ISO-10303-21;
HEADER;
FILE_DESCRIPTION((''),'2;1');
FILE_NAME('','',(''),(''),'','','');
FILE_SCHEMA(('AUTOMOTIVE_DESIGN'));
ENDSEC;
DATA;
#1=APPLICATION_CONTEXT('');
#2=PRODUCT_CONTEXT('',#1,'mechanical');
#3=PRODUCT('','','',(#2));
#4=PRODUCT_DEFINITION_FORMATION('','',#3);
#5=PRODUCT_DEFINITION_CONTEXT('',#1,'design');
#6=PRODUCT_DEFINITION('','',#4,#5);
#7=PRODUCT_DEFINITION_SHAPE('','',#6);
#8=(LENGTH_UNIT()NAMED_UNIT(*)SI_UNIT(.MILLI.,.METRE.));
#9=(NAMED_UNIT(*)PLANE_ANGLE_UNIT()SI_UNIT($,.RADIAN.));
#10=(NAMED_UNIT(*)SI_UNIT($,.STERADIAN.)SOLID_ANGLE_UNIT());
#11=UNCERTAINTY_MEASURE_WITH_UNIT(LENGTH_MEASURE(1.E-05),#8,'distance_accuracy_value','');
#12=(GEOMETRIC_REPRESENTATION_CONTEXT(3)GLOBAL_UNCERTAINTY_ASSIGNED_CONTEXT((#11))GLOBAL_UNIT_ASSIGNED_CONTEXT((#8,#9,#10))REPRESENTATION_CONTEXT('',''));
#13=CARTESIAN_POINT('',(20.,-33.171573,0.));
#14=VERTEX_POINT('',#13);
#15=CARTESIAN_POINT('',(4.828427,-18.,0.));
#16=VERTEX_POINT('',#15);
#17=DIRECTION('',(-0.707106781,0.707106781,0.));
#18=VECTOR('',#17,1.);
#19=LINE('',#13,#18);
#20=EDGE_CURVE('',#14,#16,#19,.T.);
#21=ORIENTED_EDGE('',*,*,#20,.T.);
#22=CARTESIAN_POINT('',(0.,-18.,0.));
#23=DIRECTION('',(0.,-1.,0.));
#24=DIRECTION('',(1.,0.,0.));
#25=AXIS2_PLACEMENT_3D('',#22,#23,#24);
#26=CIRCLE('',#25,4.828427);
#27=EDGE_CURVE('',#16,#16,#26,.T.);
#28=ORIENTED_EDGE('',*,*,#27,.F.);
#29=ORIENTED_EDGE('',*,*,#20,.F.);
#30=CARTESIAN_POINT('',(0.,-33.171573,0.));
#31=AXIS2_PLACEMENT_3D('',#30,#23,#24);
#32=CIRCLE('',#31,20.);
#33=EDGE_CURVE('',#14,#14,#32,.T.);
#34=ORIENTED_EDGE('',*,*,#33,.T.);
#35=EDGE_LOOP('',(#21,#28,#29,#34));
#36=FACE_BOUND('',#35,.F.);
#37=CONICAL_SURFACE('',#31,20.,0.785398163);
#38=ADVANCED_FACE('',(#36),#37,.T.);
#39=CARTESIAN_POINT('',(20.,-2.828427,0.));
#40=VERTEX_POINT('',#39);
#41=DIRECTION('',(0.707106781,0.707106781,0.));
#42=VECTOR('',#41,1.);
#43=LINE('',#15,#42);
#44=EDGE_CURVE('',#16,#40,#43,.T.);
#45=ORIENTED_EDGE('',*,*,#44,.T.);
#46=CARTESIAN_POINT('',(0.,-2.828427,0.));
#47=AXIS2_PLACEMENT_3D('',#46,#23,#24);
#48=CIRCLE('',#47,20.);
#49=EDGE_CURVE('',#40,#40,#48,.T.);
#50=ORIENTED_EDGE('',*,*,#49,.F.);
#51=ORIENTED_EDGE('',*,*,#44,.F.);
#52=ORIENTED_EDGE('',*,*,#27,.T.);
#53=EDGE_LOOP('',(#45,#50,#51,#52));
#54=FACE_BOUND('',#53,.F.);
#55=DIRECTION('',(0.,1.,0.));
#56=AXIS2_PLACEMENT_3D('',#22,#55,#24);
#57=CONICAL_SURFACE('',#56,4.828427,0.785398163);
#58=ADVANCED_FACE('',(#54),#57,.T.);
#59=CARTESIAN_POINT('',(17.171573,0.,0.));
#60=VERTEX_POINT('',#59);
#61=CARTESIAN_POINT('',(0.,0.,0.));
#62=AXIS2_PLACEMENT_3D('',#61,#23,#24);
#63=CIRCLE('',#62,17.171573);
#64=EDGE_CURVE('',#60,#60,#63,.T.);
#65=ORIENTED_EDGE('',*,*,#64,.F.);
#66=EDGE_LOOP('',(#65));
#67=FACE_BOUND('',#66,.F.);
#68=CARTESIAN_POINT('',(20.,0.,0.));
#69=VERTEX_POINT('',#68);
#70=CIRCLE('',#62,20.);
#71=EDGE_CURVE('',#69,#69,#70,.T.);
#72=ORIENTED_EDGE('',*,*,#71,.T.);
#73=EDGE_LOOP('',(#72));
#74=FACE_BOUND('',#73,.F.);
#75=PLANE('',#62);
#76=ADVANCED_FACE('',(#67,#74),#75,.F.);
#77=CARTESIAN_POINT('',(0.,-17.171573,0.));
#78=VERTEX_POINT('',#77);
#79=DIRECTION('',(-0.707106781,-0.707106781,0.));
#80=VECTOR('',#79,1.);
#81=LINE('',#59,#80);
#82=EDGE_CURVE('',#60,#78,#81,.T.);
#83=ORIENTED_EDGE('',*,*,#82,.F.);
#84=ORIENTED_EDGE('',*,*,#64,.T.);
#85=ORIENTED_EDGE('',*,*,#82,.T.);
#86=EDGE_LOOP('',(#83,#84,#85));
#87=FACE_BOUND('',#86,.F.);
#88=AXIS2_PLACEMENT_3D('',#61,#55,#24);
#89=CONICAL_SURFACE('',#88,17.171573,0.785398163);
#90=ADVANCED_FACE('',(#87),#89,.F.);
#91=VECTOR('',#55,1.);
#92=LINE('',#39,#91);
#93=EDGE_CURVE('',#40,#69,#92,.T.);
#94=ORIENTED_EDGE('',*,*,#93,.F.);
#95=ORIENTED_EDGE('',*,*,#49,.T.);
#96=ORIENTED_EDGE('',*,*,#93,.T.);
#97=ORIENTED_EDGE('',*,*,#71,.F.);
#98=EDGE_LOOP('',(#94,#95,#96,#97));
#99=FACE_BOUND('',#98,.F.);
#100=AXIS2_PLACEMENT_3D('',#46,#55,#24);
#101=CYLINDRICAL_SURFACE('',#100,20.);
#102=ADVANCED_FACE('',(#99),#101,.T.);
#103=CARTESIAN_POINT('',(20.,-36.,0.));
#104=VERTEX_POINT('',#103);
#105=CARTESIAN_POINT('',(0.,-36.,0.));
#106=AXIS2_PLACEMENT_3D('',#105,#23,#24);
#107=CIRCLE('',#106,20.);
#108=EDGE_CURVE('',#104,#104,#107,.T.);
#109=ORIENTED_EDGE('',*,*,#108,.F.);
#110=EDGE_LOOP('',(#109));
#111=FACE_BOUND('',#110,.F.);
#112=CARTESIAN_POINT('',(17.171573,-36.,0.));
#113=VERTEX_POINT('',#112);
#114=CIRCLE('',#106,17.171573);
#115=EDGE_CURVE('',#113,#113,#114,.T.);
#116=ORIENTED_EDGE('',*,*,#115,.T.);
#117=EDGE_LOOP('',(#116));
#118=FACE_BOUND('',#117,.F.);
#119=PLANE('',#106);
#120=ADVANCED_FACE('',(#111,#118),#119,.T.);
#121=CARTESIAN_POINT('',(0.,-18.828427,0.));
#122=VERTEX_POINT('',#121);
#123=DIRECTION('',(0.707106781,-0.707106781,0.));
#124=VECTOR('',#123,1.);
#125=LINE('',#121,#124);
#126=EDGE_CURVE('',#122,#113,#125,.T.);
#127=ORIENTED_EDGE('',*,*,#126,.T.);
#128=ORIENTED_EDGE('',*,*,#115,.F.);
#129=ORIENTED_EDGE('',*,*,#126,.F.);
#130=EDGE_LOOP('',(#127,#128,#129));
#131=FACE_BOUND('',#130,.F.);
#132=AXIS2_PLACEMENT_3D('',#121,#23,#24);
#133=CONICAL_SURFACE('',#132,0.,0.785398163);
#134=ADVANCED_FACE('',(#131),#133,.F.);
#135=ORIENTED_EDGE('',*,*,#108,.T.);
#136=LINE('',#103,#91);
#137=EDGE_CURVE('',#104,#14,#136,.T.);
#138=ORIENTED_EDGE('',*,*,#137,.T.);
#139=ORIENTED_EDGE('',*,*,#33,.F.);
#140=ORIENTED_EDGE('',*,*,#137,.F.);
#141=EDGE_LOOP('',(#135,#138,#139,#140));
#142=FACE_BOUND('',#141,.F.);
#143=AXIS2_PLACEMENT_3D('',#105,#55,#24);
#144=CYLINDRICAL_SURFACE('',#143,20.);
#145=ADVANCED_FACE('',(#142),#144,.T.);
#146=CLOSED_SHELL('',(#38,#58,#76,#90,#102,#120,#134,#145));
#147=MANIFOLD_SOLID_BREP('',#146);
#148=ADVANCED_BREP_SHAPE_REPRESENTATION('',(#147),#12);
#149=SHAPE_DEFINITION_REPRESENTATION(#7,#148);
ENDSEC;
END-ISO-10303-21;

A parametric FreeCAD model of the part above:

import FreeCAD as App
import Part
import Sketcher
Q = App.Units.Quantity

doc = App.newDocument("Part")
body = doc.addObject("PartDesign::Body", "Body")

sketch1 = body.newObject("Sketcher::SketchObject", "Sketch")
sketch1.AttachmentSupport = (doc.getObject("XY_Plane"), [""])
sketch1.MapMode = "FlatFace"
sketch1.addGeometry([
    Part.LineSegment(App.Vector(20, 0, 0), App.Vector(17.171573, 0, 0)),
    Part.LineSegment(App.Vector(17.171573, 0, 0), App.Vector(0, -17.171573, 0)),
    Part.LineSegment(App.Vector(0, -17.171573, 0), App.Vector(0, -18.828427, 0)),
    Part.LineSegment(App.Vector(0, -18.828427, 0), App.Vector(17.171573, -36, 0)),
    Part.LineSegment(App.Vector(17.171573, -36, 0), App.Vector(20, -36, 0)),
    Part.LineSegment(App.Vector(20, -36, 0), App.Vector(20, -33.171573, 0)),
    Part.LineSegment(App.Vector(20, -33.171573, 0), App.Vector(4.828427, -18, 0)),
    Part.LineSegment(App.Vector(4.828427, -18, 0), App.Vector(20, -2.828427, 0)),
    Part.LineSegment(App.Vector(20, -2.828427, 0), App.Vector(20, 0, 0)),
], False)
sketch1.addConstraint([
    Sketcher.Constraint("Coincident", 0, 2, 1, 1),
    Sketcher.Constraint("Coincident", 1, 2, 2, 1),
    Sketcher.Constraint("Coincident", 2, 2, 3, 1),
    Sketcher.Constraint("Coincident", 3, 2, 4, 1),
    Sketcher.Constraint("Coincident", 4, 2, 5, 1),
    Sketcher.Constraint("Coincident", 5, 2, 6, 1),
    Sketcher.Constraint("Coincident", 6, 2, 7, 1),
    Sketcher.Constraint("Coincident", 7, 2, 8, 1),
    Sketcher.Constraint("Coincident", 8, 2, 0, 1),
    Sketcher.Constraint("Horizontal", 0),
    Sketcher.Constraint("Vertical", 2),
    Sketcher.Constraint("Horizontal", 4),
    Sketcher.Constraint("Vertical", 5),
    Sketcher.Constraint("Vertical", 8),
    Sketcher.Constraint("PointOnObject", 0, 2, -1),
    Sketcher.Constraint("PointOnObject", 1, 2, -2),
    Sketcher.Constraint("Perpendicular", 1, 3),
    Sketcher.Constraint("Parallel", 3, 6),
    Sketcher.Constraint("Perpendicular", 6, 7),
    Sketcher.Constraint("Vertical", 0, 2, 3, 2),
    Sketcher.Constraint("Vertical", 5, 2, 7, 2),
    Sketcher.Constraint("Equal", 4, 5),
    Sketcher.Constraint("Equal", 5, 8),
    Sketcher.Constraint("Equal", 1, 3),
    Sketcher.Constraint("DistanceY", 3, 2, -1, 1, Q("36 mm")),
    Sketcher.Constraint("DistanceX", -1, 1, 4, 2, Q("20 mm")),
    Sketcher.Constraint("Distance", 1, Q("24.284271 mm")),
])
revolution = body.newObject("PartDesign::Revolution", "Revolution")
revolution.Profile = sketch1
revolution.ReferenceAxis = (sketch1, ["V_Axis"])
revolution.Angle = 360

doc.recompute()
